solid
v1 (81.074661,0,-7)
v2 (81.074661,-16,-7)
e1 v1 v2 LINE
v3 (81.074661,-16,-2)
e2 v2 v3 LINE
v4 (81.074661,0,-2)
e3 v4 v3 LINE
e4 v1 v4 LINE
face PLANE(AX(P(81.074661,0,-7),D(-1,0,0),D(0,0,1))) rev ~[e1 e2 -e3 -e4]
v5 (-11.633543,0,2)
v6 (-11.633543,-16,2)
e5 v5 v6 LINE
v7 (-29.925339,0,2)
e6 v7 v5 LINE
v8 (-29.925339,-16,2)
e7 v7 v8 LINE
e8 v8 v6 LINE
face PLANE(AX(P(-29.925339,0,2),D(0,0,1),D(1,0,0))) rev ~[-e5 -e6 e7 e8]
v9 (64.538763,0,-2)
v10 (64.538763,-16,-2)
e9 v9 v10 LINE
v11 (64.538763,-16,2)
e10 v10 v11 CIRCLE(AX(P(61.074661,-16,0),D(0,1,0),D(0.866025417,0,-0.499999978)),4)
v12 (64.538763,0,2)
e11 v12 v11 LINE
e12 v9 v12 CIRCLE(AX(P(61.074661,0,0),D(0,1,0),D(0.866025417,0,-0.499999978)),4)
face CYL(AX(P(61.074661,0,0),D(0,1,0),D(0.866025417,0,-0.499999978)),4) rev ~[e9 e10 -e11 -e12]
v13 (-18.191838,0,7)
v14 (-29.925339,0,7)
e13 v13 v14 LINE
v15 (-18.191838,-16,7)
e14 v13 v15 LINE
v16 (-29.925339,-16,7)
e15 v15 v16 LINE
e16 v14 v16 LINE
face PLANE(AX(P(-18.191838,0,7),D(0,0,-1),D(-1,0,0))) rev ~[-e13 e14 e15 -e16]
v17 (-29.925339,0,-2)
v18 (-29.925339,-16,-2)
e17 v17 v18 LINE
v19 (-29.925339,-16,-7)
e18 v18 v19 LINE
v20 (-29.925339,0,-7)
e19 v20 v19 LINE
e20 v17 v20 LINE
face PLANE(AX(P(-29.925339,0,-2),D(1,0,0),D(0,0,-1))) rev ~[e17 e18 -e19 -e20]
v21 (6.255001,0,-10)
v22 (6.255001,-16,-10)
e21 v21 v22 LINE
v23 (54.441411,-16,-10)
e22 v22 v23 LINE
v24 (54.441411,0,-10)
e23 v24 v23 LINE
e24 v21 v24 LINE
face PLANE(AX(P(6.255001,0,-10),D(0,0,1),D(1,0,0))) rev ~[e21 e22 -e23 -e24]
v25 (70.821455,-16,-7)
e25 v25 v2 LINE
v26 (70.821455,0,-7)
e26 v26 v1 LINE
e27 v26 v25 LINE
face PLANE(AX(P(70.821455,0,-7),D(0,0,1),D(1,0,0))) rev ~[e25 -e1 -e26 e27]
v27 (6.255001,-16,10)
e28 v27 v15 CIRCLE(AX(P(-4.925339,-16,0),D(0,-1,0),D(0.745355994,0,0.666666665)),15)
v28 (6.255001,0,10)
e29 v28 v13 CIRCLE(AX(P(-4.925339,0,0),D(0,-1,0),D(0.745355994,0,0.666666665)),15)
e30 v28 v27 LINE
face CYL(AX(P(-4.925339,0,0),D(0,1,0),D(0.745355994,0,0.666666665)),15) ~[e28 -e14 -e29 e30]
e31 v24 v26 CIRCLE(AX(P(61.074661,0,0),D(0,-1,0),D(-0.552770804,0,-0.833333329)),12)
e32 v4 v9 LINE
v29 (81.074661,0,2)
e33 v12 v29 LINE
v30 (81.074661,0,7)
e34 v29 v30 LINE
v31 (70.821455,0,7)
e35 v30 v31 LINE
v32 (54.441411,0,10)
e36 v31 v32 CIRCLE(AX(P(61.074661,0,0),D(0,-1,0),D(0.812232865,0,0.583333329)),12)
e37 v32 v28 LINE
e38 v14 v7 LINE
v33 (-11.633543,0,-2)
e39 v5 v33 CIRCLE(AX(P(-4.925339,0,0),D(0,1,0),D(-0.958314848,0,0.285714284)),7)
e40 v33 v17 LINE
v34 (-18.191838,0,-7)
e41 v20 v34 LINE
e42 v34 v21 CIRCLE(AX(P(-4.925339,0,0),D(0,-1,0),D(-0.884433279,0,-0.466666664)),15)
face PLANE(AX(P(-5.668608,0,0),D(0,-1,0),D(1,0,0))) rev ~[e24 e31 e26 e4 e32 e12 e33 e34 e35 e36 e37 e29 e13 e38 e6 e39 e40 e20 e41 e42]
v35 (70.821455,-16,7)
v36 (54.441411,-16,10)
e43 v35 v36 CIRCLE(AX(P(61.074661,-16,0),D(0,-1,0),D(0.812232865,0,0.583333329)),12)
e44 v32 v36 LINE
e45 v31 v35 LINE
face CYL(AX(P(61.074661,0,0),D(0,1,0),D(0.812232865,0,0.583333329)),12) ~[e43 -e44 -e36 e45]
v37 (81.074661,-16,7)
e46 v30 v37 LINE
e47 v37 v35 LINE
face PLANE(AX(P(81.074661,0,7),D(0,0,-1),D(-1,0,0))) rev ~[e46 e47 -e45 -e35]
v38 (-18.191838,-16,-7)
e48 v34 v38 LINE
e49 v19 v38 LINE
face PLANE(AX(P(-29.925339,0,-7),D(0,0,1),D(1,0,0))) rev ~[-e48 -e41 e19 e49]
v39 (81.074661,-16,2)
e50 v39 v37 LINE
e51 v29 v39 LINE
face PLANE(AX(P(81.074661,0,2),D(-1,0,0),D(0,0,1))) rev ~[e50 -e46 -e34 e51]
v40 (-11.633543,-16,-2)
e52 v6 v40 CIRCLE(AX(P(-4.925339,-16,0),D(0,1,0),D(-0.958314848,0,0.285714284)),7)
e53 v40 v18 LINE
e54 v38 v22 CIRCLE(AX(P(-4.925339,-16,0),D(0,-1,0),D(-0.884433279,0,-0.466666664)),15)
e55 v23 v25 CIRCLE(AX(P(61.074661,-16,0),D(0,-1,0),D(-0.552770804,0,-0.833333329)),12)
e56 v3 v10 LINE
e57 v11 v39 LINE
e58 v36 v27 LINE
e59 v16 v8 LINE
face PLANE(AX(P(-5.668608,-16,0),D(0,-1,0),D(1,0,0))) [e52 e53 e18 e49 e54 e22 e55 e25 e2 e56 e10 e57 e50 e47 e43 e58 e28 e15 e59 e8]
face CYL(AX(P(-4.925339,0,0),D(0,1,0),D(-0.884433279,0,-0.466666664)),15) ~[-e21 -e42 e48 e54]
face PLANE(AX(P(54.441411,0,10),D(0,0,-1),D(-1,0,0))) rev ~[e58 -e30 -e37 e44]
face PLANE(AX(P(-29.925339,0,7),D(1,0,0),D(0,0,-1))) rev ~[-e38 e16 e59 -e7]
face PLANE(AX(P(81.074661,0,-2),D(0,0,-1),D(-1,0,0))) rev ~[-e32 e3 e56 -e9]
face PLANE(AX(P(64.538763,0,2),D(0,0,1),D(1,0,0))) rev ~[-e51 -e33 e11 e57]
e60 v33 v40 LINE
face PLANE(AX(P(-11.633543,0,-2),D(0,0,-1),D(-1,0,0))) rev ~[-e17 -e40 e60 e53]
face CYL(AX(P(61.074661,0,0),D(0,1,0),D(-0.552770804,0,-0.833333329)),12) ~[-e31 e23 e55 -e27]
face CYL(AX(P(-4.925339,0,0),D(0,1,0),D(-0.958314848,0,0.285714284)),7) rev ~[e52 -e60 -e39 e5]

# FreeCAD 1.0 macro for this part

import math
import FreeCAD as App
import Part
import Sketcher
from FreeCAD import Vector

doc = App.newDocument("Part")
body = doc.addObject("PartDesign::Body", "Body")

# Sketch on XZ plane
sketch1 = body.newObject("Sketcher::SketchObject", "Sketch")
sketch1.AttachmentSupport = (doc.getObject("XZ_Plane"), [""])
sketch1.MapMode = "FlatFace"
sketch1.addGeometry([
    Part.ArcOfCircle(Part.Circle(Vector(-4.925339, 0, 0), Vector(0, 0, 1), 7), math.radians(-163.39845), math.radians(163.39845)),  # 0
    Part.LineSegment(Vector(-11.633543, -2, 0), Vector(-29.925339, -2, 0)),  # 1
    Part.LineSegment(Vector(-29.925339, -2, 0), Vector(-29.925339, -7, 0)),  # 2
    Part.LineSegment(Vector(-29.925339, -7, 0), Vector(-18.191838, -7, 0)),  # 3
    Part.ArcOfCircle(Part.Circle(Vector(-4.925339, 0, 0), Vector(0, 0, 1), 15), math.radians(-152.181861), math.radians(-41.810315)),  # 4
    Part.LineSegment(Vector(6.255001, -10, 0), Vector(54.441411, -10, 0)),  # 5
    Part.ArcOfCircle(Part.Circle(Vector(61.074661, 0, 0), Vector(0, 0, 1), 12), math.radians(-123.55731), math.radians(-35.685334)),  # 6
    Part.LineSegment(Vector(70.821455, -7, 0), Vector(81.074661, -7, 0)),  # 7
    Part.LineSegment(Vector(81.074661, -7, 0), Vector(81.074661, -2, 0)),  # 8
    Part.LineSegment(Vector(81.074661, -2, 0), Vector(64.538763, -2, 0)),  # 9
    Part.ArcOfCircle(Part.Circle(Vector(61.074661, 0, 0), Vector(0, 0, 1), 4), math.radians(29.999999), math.radians(330.000001)),  # 10
    Part.LineSegment(Vector(64.538763, 2, 0), Vector(81.074661, 2, 0)),  # 11
    Part.LineSegment(Vector(81.074661, 2, 0), Vector(81.074661, 7, 0)),  # 12
    Part.LineSegment(Vector(81.074661, 7, 0), Vector(70.821455, 7, 0)),  # 13
    Part.ArcOfCircle(Part.Circle(Vector(61.074661, 0, 0), Vector(0, 0, 1), 12), math.radians(35.685334), math.radians(123.55731)),  # 14
    Part.LineSegment(Vector(54.441411, 10, 0), Vector(6.255001, 10, 0)),  # 15
    Part.ArcOfCircle(Part.Circle(Vector(-4.925339, 0, 0), Vector(0, 0, 1), 15), math.radians(41.810315), math.radians(152.181861)),  # 16
    Part.LineSegment(Vector(-18.191838, 7, 0), Vector(-29.925339, 7, 0)),  # 17
    Part.LineSegment(Vector(-29.925339, 7, 0), Vector(-29.925339, 2, 0)),  # 18
    Part.LineSegment(Vector(-29.925339, 2, 0), Vector(-11.633543, 2, 0)),  # 19
], False)
sketch1.addConstraint([
    Sketcher.Constraint("Coincident", 0, 1, 1, 1),
    Sketcher.Constraint("Coincident", 1, 2, 2, 1),
    Sketcher.Constraint("Coincident", 2, 2, 3, 1),
    Sketcher.Constraint("Coincident", 3, 2, 4, 1),
    Sketcher.Constraint("Coincident", 4, 2, 5, 1),
    Sketcher.Constraint("Coincident", 5, 2, 6, 1),
    Sketcher.Constraint("Coincident", 6, 2, 7, 1),
    Sketcher.Constraint("Coincident", 7, 2, 8, 1),
    Sketcher.Constraint("Coincident", 8, 2, 9, 1),
    Sketcher.Constraint("Coincident", 9, 2, 10, 2),
    Sketcher.Constraint("Coincident", 10, 1, 11, 1),
    Sketcher.Constraint("Coincident", 11, 2, 12, 1),
    Sketcher.Constraint("Coincident", 12, 2, 13, 1),
    Sketcher.Constraint("Coincident", 13, 2, 14, 1),
    Sketcher.Constraint("Coincident", 14, 2, 15, 1),
    Sketcher.Constraint("Coincident", 15, 2, 16, 1),
    Sketcher.Constraint("Coincident", 16, 2, 17, 1),
    Sketcher.Constraint("Coincident", 17, 2, 18, 1),
    Sketcher.Constraint("Coincident", 18, 2, 19, 1),
    Sketcher.Constraint("Coincident", 19, 2, 0, 2),
    Sketcher.Constraint("Horizontal", 1),
    Sketcher.Constraint("Vertical", 2),
    Sketcher.Constraint("Horizontal", 3),
    Sketcher.Constraint("Horizontal", 5),
    Sketcher.Constraint("Horizontal", 7),
    Sketcher.Constraint("Vertical", 8),
    Sketcher.Constraint("Horizontal", 9),
    Sketcher.Constraint("Horizontal", 11),
    Sketcher.Constraint("Vertical", 12),
    Sketcher.Constraint("Horizontal", 13),
    Sketcher.Constraint("Horizontal", 15),
    Sketcher.Constraint("Horizontal", 17),
    Sketcher.Constraint("Vertical", 18),
    Sketcher.Constraint("Horizontal", 19),
    Sketcher.Constraint("Coincident", 4, 3, 0, 3),
    Sketcher.Constraint("Coincident", 10, 3, 6, 3),
    Sketcher.Constraint("Coincident", 14, 3, 6, 3),
    Sketcher.Constraint("Coincident", 16, 3, 0, 3),
    Sketcher.Constraint("Equal", 6, 14),
    Sketcher.Constraint("Equal", 4, 16),
    Sketcher.Constraint("Symmetric", 9, 2, 10, 1, -1),
    Sketcher.Constraint("Symmetric", 7, 2, 12, 2, -1),
    Sketcher.Constraint("Symmetric", 4, 2, 15, 2, -1),
    Sketcher.Constraint("Symmetric", 2, 2, 17, 2, -1),
    Sketcher.Constraint("Horizontal", 3, 2, 6, 2),
    Sketcher.Constraint("Horizontal", 1, 2, 8, 2),
    Sketcher.Constraint("Horizontal", 11, 2, 18, 2),
    Sketcher.Constraint("Radius", 0, 7.0),
    Sketcher.Constraint("Radius", 4, 15.0),
    Sketcher.Constraint("Radius", 6, 12.0),
    Sketcher.Constraint("Radius", 10, 4.0),
    Sketcher.Constraint("DistanceY", 2, 2, 2, 1, 5.0),
    Sketcher.Constraint("DistanceY", 0, 1, -1, 1, 2.0),
    Sketcher.Constraint("DistanceY", 4, 2, -1, 1, 10.0),
    Sketcher.Constraint("DistanceX", 4, 3, 6, 3, 66.0),
    Sketcher.Constraint("DistanceX", 1, 2, 0, 3, 25.0),
    Sketcher.Constraint("DistanceX", 10, 3, 7, 2, 20.0),
    Sketcher.Constraint("DistanceX", -1, 1, 4, 2, 6.255001),
])
pad1 = body.newObject("PartDesign::Pad", "Pad")
pad1.Profile = sketch1
pad1.Length = 16

doc.recompute()
